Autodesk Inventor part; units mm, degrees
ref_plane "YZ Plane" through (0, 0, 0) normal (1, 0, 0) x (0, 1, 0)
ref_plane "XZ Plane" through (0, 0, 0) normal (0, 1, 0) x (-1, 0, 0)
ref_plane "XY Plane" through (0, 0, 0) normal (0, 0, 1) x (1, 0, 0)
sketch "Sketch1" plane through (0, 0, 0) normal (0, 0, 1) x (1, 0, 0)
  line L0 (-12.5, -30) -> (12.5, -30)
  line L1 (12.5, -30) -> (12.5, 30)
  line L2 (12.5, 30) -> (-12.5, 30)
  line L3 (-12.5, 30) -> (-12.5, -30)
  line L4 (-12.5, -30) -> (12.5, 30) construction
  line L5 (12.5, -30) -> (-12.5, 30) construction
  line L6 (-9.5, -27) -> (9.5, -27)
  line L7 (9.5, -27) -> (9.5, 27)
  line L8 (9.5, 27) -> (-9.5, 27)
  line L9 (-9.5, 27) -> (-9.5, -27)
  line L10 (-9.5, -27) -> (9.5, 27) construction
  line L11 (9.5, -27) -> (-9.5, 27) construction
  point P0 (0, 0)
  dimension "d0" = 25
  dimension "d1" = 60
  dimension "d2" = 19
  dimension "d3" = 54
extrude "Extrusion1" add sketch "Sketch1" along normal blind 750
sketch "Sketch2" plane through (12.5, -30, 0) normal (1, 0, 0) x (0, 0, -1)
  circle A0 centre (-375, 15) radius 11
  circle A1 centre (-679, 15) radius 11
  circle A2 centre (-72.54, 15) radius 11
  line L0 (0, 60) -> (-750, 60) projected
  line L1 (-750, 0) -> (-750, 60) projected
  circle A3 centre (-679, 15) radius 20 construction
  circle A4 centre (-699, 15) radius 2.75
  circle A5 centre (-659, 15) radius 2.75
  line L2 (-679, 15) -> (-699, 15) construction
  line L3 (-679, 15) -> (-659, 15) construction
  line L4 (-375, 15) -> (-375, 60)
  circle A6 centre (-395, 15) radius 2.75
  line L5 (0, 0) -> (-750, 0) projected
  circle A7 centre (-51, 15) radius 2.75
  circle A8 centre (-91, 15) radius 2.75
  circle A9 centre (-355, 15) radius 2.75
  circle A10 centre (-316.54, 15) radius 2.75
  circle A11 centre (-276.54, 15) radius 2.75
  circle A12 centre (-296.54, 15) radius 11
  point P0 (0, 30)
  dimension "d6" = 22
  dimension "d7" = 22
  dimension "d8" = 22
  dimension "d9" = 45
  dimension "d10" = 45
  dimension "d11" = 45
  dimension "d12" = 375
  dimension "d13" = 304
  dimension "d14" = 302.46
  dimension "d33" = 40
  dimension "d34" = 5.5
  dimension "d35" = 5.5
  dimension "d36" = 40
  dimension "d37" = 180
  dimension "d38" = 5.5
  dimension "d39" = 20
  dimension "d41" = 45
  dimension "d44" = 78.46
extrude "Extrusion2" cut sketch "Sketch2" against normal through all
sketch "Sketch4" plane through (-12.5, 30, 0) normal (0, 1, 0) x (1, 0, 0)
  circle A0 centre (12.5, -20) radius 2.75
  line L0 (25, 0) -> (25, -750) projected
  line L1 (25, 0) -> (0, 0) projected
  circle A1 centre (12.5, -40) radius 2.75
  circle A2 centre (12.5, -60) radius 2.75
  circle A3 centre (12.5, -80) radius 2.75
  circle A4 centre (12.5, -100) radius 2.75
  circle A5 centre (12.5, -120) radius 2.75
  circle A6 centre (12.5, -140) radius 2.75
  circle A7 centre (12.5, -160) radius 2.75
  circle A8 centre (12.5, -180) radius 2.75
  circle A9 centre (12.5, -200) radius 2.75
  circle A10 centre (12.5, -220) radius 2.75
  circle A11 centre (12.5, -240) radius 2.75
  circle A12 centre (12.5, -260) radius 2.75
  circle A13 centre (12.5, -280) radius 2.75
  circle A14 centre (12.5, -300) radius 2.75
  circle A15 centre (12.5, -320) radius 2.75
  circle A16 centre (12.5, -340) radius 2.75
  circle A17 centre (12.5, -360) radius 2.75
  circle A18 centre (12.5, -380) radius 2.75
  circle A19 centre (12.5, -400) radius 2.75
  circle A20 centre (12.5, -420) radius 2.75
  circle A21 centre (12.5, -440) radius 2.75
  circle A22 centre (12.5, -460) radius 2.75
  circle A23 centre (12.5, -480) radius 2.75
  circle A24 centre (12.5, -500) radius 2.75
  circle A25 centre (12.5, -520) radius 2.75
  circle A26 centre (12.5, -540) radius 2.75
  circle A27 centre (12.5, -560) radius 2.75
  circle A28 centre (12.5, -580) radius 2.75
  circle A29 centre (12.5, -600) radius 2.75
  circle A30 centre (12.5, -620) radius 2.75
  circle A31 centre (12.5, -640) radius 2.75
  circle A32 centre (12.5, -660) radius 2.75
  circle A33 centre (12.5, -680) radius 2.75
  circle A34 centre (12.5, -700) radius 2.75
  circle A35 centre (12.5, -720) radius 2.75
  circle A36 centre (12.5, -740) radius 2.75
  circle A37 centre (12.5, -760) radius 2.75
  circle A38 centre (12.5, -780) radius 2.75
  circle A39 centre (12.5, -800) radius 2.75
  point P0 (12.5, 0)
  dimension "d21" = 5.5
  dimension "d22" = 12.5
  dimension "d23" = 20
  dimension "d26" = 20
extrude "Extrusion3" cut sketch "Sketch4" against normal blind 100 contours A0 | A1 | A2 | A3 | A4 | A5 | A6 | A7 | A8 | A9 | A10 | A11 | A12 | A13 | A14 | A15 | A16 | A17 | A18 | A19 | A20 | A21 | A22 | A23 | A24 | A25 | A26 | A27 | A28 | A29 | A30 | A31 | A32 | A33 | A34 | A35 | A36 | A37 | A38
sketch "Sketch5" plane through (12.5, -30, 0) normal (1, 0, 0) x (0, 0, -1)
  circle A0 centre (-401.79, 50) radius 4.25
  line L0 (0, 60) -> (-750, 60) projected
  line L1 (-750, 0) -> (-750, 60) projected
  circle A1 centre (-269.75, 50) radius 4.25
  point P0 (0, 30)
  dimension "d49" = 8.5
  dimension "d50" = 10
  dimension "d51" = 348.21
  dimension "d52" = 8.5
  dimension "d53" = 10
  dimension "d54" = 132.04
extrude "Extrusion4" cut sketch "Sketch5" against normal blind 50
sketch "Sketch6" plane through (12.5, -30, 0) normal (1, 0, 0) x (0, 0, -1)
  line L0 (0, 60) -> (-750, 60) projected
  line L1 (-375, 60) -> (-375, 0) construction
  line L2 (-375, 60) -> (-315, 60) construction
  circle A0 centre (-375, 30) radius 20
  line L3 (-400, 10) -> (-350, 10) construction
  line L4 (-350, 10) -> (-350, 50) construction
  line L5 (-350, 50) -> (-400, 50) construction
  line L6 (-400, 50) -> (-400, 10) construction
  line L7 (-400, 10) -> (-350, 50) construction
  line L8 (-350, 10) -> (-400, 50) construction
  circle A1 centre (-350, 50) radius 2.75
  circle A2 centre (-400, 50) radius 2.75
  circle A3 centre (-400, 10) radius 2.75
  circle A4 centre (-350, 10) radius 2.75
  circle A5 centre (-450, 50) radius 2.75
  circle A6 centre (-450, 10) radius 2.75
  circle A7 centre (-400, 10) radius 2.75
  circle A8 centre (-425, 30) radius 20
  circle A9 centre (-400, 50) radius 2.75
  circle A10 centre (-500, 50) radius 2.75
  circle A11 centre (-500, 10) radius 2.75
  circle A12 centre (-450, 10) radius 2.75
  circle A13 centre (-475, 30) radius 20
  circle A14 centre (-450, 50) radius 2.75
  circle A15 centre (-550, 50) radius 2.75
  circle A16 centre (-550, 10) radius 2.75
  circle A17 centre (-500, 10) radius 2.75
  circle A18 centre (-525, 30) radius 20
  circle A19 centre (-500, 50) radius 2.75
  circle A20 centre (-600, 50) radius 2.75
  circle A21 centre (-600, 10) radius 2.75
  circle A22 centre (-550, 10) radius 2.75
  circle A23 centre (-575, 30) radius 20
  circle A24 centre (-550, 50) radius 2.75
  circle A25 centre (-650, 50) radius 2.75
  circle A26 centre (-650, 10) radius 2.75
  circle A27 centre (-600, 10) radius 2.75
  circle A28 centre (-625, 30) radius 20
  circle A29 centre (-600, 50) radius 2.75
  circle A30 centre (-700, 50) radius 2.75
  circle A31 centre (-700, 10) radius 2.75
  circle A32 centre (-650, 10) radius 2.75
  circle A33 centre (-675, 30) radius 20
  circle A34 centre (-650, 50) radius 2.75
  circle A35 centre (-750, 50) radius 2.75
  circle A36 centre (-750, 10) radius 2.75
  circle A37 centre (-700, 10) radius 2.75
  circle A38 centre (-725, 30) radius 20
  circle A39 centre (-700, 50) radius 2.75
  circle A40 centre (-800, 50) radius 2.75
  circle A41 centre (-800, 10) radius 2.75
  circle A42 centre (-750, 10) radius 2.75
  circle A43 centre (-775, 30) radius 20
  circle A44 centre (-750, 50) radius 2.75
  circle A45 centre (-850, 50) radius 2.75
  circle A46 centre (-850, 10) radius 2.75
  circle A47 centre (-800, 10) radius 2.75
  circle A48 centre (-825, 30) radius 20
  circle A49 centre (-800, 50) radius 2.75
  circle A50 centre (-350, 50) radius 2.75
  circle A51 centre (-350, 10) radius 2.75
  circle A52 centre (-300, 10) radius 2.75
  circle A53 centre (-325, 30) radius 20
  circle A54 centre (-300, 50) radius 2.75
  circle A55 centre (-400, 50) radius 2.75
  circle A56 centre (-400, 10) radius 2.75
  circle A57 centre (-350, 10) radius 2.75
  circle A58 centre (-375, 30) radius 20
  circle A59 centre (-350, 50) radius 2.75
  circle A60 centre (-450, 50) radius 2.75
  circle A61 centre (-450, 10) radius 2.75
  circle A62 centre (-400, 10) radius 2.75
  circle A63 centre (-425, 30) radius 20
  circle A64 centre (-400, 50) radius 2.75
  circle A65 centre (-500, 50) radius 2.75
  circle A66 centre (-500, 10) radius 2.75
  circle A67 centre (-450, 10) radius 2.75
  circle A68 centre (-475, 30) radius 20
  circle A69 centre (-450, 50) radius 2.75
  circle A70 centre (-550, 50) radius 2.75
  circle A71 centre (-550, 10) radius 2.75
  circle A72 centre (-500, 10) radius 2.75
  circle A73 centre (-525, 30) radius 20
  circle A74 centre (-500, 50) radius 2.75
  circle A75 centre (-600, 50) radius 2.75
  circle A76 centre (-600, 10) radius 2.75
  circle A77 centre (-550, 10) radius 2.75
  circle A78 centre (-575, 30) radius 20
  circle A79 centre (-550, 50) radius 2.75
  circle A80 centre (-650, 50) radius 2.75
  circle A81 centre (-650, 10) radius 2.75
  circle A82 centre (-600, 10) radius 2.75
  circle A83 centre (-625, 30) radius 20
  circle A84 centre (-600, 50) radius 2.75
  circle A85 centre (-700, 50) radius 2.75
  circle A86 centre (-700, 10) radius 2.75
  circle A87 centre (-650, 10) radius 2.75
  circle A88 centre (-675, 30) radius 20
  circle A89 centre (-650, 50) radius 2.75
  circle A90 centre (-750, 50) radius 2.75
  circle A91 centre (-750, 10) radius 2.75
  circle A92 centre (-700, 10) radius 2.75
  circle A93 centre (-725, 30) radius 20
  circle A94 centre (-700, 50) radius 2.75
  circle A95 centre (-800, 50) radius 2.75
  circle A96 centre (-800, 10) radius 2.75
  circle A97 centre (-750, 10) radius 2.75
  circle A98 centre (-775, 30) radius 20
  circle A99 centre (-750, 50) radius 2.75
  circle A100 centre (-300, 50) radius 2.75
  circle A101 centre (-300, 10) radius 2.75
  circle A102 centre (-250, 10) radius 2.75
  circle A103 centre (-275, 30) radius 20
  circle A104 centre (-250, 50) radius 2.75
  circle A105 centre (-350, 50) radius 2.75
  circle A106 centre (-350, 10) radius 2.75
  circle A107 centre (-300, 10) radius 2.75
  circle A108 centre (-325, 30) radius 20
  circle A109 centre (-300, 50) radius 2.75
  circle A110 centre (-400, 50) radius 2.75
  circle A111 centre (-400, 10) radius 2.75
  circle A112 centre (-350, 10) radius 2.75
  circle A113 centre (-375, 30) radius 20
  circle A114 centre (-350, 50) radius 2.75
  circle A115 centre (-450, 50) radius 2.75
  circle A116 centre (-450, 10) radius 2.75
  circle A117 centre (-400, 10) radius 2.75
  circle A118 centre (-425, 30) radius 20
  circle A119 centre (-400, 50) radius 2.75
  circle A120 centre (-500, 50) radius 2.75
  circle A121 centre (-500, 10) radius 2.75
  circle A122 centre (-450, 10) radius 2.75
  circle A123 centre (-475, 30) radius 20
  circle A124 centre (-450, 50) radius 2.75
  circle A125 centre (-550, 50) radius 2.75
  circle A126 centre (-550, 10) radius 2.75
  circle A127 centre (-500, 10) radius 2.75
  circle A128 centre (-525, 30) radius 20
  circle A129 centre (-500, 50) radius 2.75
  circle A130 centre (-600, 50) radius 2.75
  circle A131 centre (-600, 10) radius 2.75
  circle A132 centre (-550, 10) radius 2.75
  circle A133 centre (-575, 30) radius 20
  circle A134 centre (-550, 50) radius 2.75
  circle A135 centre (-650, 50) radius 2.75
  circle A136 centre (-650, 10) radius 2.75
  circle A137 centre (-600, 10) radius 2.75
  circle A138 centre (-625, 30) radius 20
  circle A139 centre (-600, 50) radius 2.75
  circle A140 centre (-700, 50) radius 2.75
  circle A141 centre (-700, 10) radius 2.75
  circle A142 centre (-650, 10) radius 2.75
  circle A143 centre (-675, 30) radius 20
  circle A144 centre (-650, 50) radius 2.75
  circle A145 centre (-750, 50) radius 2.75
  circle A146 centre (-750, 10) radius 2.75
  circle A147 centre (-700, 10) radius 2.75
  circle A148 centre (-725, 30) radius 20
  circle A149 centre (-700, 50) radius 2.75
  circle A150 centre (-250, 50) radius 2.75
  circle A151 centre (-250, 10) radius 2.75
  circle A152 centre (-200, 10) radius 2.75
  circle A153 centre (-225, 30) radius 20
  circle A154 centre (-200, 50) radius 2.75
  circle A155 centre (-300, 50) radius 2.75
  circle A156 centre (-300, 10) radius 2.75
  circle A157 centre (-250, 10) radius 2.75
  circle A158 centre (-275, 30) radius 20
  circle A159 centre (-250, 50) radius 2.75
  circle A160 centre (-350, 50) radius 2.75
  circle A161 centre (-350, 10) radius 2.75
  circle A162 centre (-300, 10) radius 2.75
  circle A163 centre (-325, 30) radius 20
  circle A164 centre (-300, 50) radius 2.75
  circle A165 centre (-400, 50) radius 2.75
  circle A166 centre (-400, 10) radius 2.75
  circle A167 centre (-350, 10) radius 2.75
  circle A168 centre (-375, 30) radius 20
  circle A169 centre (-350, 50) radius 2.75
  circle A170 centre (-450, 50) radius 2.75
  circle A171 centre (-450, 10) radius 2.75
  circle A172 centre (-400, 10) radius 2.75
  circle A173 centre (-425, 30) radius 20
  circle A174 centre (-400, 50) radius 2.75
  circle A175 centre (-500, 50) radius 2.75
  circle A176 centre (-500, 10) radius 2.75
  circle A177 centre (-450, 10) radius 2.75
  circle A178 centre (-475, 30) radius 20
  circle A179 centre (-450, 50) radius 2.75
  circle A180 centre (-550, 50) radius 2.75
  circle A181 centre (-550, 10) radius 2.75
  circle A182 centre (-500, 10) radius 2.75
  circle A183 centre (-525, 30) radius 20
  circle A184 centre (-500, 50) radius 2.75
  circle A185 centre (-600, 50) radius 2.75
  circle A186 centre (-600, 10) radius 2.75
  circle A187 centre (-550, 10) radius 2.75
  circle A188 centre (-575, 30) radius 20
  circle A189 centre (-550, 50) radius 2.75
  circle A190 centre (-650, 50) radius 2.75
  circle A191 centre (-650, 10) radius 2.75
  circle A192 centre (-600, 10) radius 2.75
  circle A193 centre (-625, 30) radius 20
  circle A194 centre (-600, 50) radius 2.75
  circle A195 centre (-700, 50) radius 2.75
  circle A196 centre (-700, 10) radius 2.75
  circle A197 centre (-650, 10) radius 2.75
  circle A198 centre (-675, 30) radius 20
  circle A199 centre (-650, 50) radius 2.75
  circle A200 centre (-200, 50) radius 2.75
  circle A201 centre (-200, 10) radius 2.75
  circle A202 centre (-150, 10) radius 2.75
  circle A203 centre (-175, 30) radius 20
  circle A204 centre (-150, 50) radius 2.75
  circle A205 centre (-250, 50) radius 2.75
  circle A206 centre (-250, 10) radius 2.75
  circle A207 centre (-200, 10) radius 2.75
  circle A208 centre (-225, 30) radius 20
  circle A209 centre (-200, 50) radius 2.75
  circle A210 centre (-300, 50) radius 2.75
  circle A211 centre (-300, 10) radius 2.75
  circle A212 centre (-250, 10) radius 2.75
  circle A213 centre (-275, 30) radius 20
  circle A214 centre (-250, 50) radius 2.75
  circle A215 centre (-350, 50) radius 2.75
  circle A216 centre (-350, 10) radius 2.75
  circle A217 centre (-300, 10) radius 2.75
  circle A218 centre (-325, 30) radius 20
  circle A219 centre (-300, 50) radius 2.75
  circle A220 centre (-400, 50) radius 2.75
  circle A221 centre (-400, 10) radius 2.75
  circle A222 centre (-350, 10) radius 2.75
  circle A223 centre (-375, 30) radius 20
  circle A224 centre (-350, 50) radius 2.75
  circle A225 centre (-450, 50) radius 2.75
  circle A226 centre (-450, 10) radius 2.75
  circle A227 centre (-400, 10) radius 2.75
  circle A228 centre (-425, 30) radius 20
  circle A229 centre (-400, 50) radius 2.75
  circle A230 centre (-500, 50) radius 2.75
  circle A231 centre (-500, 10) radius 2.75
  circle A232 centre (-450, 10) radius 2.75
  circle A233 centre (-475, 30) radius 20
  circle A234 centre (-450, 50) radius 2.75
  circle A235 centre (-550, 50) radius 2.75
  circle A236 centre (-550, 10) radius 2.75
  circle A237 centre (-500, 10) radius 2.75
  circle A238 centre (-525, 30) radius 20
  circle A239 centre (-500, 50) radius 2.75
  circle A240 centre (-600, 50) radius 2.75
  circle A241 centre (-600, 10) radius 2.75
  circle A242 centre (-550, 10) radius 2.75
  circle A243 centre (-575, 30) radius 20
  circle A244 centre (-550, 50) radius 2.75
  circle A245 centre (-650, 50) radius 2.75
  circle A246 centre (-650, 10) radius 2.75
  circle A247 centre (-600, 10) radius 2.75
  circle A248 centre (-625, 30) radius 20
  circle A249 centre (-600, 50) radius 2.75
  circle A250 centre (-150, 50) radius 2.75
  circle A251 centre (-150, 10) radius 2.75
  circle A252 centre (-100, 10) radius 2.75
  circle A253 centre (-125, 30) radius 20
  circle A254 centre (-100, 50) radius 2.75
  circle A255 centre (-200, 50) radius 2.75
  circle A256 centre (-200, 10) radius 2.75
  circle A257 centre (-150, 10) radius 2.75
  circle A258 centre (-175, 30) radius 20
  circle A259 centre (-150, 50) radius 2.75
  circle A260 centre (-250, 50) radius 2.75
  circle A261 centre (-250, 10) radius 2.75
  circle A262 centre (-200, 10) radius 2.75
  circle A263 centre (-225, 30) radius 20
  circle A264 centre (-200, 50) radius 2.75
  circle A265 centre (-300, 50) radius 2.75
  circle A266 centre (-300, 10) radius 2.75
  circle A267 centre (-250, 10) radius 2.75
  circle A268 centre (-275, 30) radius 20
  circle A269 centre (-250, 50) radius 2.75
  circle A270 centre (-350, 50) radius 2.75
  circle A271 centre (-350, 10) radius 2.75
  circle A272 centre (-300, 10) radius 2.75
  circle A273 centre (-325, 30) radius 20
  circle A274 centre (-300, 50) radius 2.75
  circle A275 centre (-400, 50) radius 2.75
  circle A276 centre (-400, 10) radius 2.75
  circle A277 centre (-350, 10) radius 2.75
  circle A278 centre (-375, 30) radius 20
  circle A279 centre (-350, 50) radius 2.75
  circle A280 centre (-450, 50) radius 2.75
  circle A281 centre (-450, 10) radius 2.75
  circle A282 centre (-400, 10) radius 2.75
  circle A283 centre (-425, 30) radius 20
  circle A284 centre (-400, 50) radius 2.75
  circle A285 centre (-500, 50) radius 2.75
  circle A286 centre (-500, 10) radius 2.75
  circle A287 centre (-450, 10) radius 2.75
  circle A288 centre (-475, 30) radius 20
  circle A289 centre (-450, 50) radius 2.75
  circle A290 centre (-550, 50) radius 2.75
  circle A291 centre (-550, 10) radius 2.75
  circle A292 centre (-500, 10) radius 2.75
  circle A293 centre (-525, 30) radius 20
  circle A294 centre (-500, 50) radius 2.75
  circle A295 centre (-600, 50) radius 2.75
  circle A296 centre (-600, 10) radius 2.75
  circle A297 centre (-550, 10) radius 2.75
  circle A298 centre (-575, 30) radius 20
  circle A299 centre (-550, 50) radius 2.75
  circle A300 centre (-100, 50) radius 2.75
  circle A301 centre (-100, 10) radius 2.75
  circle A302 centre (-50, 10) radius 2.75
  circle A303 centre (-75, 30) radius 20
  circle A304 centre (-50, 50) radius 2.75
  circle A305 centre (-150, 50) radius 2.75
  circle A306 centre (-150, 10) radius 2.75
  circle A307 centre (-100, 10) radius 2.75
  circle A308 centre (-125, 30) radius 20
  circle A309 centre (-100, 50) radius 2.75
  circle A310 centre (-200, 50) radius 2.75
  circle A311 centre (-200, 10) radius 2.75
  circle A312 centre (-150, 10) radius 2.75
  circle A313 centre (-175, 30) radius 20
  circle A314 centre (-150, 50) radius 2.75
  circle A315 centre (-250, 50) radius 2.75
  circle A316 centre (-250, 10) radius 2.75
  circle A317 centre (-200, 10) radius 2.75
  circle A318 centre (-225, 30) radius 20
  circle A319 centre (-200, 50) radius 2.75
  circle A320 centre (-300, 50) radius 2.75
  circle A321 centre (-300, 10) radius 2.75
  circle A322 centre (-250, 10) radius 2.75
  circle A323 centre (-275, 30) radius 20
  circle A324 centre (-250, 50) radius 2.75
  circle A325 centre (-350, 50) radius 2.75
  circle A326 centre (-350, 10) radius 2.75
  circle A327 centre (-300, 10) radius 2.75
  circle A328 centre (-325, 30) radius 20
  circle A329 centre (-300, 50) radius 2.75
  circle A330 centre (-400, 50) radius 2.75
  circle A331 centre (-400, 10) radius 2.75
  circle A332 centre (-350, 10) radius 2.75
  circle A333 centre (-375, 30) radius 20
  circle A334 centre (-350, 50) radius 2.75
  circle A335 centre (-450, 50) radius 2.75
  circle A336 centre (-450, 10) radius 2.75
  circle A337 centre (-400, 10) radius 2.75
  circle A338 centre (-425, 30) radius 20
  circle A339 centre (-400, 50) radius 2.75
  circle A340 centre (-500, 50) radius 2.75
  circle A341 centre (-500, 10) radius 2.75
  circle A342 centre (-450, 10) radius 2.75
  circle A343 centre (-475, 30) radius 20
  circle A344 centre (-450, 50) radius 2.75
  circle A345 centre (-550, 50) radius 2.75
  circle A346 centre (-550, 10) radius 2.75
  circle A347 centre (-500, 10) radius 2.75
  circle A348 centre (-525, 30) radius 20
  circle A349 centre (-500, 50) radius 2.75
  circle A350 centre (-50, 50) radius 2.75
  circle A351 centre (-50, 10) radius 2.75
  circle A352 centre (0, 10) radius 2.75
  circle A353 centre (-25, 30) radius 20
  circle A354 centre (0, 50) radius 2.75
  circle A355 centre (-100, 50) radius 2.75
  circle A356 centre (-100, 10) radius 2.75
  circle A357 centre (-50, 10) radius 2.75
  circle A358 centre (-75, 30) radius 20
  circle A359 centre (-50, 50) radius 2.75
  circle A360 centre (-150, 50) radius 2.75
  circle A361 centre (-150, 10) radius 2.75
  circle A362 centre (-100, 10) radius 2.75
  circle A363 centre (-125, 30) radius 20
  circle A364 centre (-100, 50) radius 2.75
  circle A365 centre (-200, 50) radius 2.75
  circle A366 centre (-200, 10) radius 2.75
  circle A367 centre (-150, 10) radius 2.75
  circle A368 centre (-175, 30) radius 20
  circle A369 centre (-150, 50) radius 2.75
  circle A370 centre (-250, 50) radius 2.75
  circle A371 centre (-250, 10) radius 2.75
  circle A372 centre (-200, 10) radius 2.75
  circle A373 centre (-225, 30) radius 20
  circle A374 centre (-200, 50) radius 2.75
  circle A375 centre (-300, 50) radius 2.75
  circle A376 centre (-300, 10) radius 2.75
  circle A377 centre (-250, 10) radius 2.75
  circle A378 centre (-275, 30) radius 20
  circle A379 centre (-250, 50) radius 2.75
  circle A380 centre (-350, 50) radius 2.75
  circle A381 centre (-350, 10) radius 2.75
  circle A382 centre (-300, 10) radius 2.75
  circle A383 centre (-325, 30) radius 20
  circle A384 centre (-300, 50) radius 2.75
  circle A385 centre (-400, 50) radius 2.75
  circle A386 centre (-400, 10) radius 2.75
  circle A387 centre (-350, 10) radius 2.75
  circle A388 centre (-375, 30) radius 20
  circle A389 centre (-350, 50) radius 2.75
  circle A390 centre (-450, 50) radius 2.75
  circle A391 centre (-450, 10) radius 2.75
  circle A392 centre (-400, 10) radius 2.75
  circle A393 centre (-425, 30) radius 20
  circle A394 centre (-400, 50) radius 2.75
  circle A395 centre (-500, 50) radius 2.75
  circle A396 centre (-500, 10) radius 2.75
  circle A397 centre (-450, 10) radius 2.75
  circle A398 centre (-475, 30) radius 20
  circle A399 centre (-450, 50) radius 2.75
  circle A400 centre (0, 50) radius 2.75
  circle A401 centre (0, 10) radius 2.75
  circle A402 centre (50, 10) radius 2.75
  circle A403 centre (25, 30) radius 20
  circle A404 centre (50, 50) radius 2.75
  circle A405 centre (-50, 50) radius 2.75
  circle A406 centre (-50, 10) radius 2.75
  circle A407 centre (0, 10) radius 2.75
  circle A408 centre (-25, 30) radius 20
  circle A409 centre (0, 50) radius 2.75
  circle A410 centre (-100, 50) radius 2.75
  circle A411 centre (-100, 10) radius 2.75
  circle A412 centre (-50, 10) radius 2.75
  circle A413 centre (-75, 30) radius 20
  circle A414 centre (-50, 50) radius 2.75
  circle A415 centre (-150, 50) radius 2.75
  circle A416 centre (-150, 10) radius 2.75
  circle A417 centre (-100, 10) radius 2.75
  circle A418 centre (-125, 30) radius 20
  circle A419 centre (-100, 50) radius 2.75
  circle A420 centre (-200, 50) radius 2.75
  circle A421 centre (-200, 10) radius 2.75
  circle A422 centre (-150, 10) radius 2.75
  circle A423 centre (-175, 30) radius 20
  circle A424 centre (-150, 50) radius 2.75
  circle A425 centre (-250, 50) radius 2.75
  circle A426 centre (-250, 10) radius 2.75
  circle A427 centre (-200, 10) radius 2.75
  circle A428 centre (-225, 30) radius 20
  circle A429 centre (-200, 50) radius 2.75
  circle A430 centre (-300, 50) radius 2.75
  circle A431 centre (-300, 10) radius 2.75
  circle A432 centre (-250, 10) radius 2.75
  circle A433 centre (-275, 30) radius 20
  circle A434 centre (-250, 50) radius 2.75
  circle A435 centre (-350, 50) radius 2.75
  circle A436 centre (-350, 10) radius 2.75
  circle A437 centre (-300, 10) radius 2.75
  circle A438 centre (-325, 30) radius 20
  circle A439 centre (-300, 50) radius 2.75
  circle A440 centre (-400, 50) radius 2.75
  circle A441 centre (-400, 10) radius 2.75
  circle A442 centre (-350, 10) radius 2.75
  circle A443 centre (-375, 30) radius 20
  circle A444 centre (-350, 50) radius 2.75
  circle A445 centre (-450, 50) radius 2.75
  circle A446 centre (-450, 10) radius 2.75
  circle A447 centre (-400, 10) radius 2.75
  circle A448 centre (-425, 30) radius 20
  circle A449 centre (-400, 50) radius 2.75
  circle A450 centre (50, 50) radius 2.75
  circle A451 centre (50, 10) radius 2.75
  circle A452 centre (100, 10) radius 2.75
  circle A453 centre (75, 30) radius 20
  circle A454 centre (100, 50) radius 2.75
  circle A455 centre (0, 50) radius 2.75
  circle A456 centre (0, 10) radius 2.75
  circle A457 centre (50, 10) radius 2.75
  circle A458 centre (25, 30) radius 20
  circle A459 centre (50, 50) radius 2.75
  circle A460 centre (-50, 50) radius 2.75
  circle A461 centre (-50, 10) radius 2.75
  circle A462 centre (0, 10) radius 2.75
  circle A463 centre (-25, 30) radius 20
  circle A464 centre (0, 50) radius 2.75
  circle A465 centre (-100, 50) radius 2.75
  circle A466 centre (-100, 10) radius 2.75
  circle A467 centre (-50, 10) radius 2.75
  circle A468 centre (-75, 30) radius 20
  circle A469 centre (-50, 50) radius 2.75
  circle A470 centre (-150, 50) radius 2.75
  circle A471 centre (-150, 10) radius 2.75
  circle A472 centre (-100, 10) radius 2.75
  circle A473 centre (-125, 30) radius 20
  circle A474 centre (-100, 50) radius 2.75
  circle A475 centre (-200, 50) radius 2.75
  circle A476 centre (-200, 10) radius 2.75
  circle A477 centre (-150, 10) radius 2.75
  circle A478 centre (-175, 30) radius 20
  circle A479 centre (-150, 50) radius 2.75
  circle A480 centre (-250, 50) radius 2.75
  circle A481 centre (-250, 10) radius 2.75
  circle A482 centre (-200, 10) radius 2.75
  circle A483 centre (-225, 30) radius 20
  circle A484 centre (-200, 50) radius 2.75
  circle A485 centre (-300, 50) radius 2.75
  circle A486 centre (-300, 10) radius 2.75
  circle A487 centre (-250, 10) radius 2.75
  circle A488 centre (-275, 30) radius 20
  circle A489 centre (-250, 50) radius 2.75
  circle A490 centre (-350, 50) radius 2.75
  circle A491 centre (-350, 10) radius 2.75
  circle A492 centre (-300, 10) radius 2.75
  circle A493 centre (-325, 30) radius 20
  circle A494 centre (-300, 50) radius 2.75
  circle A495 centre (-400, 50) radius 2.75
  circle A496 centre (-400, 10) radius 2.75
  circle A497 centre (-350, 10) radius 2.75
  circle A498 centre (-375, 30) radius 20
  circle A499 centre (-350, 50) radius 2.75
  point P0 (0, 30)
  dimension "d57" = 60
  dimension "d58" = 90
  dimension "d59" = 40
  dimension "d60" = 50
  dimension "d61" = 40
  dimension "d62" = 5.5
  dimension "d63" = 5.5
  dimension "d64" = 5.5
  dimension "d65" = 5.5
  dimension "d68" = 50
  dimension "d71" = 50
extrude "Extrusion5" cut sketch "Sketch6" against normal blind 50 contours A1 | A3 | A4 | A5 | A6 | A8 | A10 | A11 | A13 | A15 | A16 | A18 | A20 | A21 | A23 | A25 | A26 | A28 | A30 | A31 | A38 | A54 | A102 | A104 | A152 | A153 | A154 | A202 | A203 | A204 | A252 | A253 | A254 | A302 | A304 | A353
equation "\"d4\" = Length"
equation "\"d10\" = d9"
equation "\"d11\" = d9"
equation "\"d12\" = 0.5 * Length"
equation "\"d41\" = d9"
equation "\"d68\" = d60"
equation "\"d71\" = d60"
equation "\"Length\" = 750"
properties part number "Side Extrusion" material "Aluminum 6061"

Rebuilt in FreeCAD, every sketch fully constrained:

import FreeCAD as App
import Part
import Sketcher

V = App.Vector

doc = App.newDocument("Part")
body = doc.addObject("PartDesign::Body", "Body")

sketch1 = body.newObject("Sketcher::SketchObject", "Sketch")
sketch1.AttachmentSupport = (doc.getObject("XY_Plane"), [""])
sketch1.MapMode = "FlatFace"
sketch1.addGeometry([
    Part.LineSegment(V(-12, 30, 0), V(-12, -30, 0)),
    Part.LineSegment(V(-12, -30, 0), V(12, -30, 0)),
    Part.LineSegment(V(12, -30, 0), V(12, 30, 0)),
    Part.LineSegment(V(12, 30, 0), V(-12, 30, 0)),
    Part.LineSegment(V(10, -27, 0), V(-10, -27, 0)),
    Part.LineSegment(V(-10, -27, 0), V(-10, 27, 0)),
    Part.LineSegment(V(-10, 27, 0), V(10, 27, 0)),
    Part.LineSegment(V(10, 27, 0), V(10, -27, 0)),
], False)
sketch1.addConstraint([
    Sketcher.Constraint("Coincident", 0, 2, 1, 1),
    Sketcher.Constraint("Coincident", 1, 2, 2, 1),
    Sketcher.Constraint("Coincident", 2, 2, 3, 1),
    Sketcher.Constraint("Coincident", 3, 2, 0, 1),
    Sketcher.Constraint("Coincident", 4, 2, 5, 1),
    Sketcher.Constraint("Coincident", 5, 2, 6, 1),
    Sketcher.Constraint("Coincident", 6, 2, 7, 1),
    Sketcher.Constraint("Coincident", 7, 2, 4, 1),
    Sketcher.Constraint("Vertical", 0),
    Sketcher.Constraint("Horizontal", 1),
    Sketcher.Constraint("Vertical", 2),
    Sketcher.Constraint("Horizontal", 3),
    Sketcher.Constraint("Horizontal", 4),
    Sketcher.Constraint("Vertical", 5),
    Sketcher.Constraint("Horizontal", 6),
    Sketcher.Constraint("Vertical", 7),
    Sketcher.Constraint("Symmetric", 0, 2, 2, 2, -1, 1),
    Sketcher.Constraint("Symmetric", 4, 2, 6, 2, -1, 1),
    Sketcher.Constraint("DistanceX", 1, 1, 1, 2, 25.0),
    Sketcher.Constraint("DistanceX", 4, 2, 4, 1, 19.0),
    Sketcher.Constraint("DistanceY", 0, 2, 0, 1, 60.0),
    Sketcher.Constraint("DistanceY", 5, 1, 5, 2, 54.0),
])
pad1 = body.newObject("PartDesign::Pad", "Pad")
pad1.Profile = sketch1
pad1.Length = 750

sketch2 = body.newObject("Sketcher::SketchObject", "Sketch001")
sketch2.AttachmentSupport = (doc.getObject("YZ_Plane"), [""])
sketch2.MapMode = "FlatFace"
sketch2.AttachmentOffset = App.Placement(V(0, 0, 12.5), App.Rotation())
sketch2.addGeometry([
    Part.Circle(V(-15, 375, 0), V(0, 0, 1), 11),
    Part.Circle(V(-15, 679, 0), V(0, 0, 1), 11),
    Part.Circle(V(-15, 72.5, 0), V(0, 0, 1), 11),
    Part.Circle(V(-15, 699, 0), V(0, 0, 1), 2.8),
    Part.Circle(V(-15, 659, 0), V(0, 0, 1), 2.8),
    Part.Circle(V(-15, 395, 0), V(0, 0, 1), 2.8),
    Part.Circle(V(-15, 51, 0), V(0, 0, 1), 2.8),
    Part.Circle(V(-15, 91, 0), V(0, 0, 1), 2.8),
    Part.Circle(V(-15, 355, 0), V(0, 0, 1), 2.8),
    Part.Circle(V(-15, 316.5, 0), V(0, 0, 1), 2.8),
    Part.Circle(V(-15, 276.5, 0), V(0, 0, 1), 2.8),
    Part.Circle(V(-15, 296.5, 0), V(0, 0, 1), 11),
], False)
sketch2.addConstraint([
    Sketcher.Constraint("Equal", 0, 1),
    Sketcher.Constraint("Equal", 1, 2),
    Sketcher.Constraint("Equal", 3, 4),
    Sketcher.Constraint("Equal", 4, 5),
    Sketcher.Constraint("Equal", 5, 6),
    Sketcher.Constraint("Equal", 6, 7),
    Sketcher.Constraint("Equal", 7, 8),
    Sketcher.Constraint("Equal", 8, 9),
    Sketcher.Constraint("Equal", 9, 10),
    Sketcher.Constraint("Equal", 2, 11),
    Sketcher.Constraint("Vertical", 0, 3, 1, 3),
    Sketcher.Constraint("Vertical", 1, 3, 2, 3),
    Sketcher.Constraint("Vertical", 2, 3, 3, 3),
    Sketcher.Constraint("Vertical", 3, 3, 4, 3),
    Sketcher.Constraint("Vertical", 4, 3, 5, 3),
    Sketcher.Constraint("Vertical", 5, 3, 6, 3),
    Sketcher.Constraint("Vertical", 6, 3, 7, 3),
    Sketcher.Constraint("Vertical", 7, 3, 8, 3),
    Sketcher.Constraint("Vertical", 8, 3, 9, 3),
    Sketcher.Constraint("Vertical", 9, 3, 10, 3),
    Sketcher.Constraint("Vertical", 10, 3, 11, 3),
    Sketcher.Constraint("Diameter", 0, 22.0),
    Sketcher.Constraint("Diameter", 3, 5.5),
    Sketcher.Constraint("DistanceY", -1, 1, 0, 3, 375.0),
    Sketcher.Constraint("DistanceY", 0, 3, 1, 3, 304.0),
    Sketcher.Constraint("DistanceY", 1, 3, 3, 3, 20.0),
    Sketcher.Constraint("DistanceY", 4, 3, 1, 3, 20.0),
    Sketcher.Constraint("DistanceY", 0, 3, 5, 3, 20.0),
    Sketcher.Constraint("DistanceY", 6, 3, 7, 3, 40.0),
    Sketcher.Constraint("DistanceY", 7, 3, 5, 3, 304.0),
    Sketcher.Constraint("DistanceY", 8, 3, 0, 3, 20.0),
    Sketcher.Constraint("DistanceY", 10, 3, 9, 3, 40.0),
    Sketcher.Constraint("DistanceY", 11, 3, 9, 3, 20.0),
    Sketcher.Constraint("DistanceY", 2, 3, 0, 3, 302.46),
    Sketcher.Constraint("DistanceY", 9, 3, 5, 3, 78.46),
    Sketcher.Constraint("DistanceX", 0, 3, -1, 1, 15.0),
])
pocket1 = body.newObject("PartDesign::Pocket", "Pocket")
pocket1.Profile = sketch2
pocket1.Type = "ThroughAll"

sketch3 = body.newObject("Sketcher::SketchObject", "Sketch002")
sketch3.AttachmentSupport = (doc.getObject("XZ_Plane"), [""])
sketch3.MapMode = "FlatFace"
sketch3.AttachmentOffset = App.Placement(V(0, 0, -30), App.Rotation())
sketch3.addGeometry([
    Part.Circle(V(0, 20, 0), V(0, 0, 1), 2.8),
    Part.Circle(V(0, 40, 0), V(0, 0, 1), 2.8),
    Part.Circle(V(0, 60, 0), V(0, 0, 1), 2.8),
    Part.Circle(V(0, 80, 0), V(0, 0, 1), 2.8),
    Part.Circle(V(0, 100, 0), V(0, 0, 1), 2.8),
    Part.Circle(V(0, 120, 0), V(0, 0, 1), 2.8),
    Part.Circle(V(0, 140, 0), V(0, 0, 1), 2.8),
    Part.Circle(V(0, 160, 0), V(0, 0, 1), 2.8),
    Part.Circle(V(0, 180, 0), V(0, 0, 1), 2.8),
    Part.Circle(V(0, 200, 0), V(0, 0, 1), 2.8),
    Part.Circle(V(0, 220, 0), V(0, 0, 1), 2.8),
    Part.Circle(V(0, 240, 0), V(0, 0, 1), 2.8),
    Part.Circle(V(0, 260, 0), V(0, 0, 1), 2.8),
    Part.Circle(V(0, 280, 0), V(0, 0, 1), 2.8),
    Part.Circle(V(0, 300, 0), V(0, 0, 1), 2.8),
    Part.Circle(V(0, 320, 0), V(0, 0, 1), 2.8),
    Part.Circle(V(0, 340, 0), V(0, 0, 1), 2.8),
    Part.Circle(V(0, 360, 0), V(0, 0, 1), 2.8),
    Part.Circle(V(0, 380, 0), V(0, 0, 1), 2.8),
    Part.Circle(V(0, 400, 0), V(0, 0, 1), 2.8),
    Part.Circle(V(0, 420, 0), V(0, 0, 1), 2.8),
    Part.Circle(V(0, 440, 0), V(0, 0, 1), 2.8),
    Part.Circle(V(0, 460, 0), V(0, 0, 1), 2.8),
    Part.Circle(V(0, 480, 0), V(0, 0, 1), 2.8),
    Part.Circle(V(0, 500, 0), V(0, 0, 1), 2.8),
    Part.Circle(V(0, 520, 0), V(0, 0, 1), 2.8),
    Part.Circle(V(0, 540, 0), V(0, 0, 1), 2.8),
    Part.Circle(V(0, 560, 0), V(0, 0, 1), 2.8),
    Part.Circle(V(0, 580, 0), V(0, 0, 1), 2.8),
    Part.Circle(V(0, 600, 0), V(0, 0, 1), 2.8),
    Part.Circle(V(0, 620, 0), V(0, 0, 1), 2.8),
    Part.Circle(V(0, 640, 0), V(0, 0, 1), 2.8),
    Part.Circle(V(0, 660, 0), V(0, 0, 1), 2.8),
    Part.Circle(V(0, 680, 0), V(0, 0, 1), 2.8),
    Part.Circle(V(0, 700, 0), V(0, 0, 1), 2.8),
    Part.Circle(V(0, 720, 0), V(0, 0, 1), 2.8),
    Part.Circle(V(0, 740, 0), V(0, 0, 1), 2.8),
    Part.Circle(V(0, 760, 0), V(0, 0, 1), 2.8),
    Part.Circle(V(0, 780, 0), V(0, 0, 1), 2.8),
], False)
sketch3.addConstraint([
    Sketcher.Constraint("Equal", 0, 1),
    Sketcher.Constraint("Equal", 1, 2),
    Sketcher.Constraint("Equal", 2, 3),
    Sketcher.Constraint("Equal", 3, 4),
    Sketcher.Constraint("Equal", 4, 5),
    Sketcher.Constraint("Equal", 5, 6),
    Sketcher.Constraint("Equal", 6, 7),
    Sketcher.Constraint("Equal", 7, 8),
    Sketcher.Constraint("Equal", 8, 9),
    Sketcher.Constraint("Equal", 9, 10),
    Sketcher.Constraint("Equal", 10, 11),
    Sketcher.Constraint("Equal", 11, 12),
    Sketcher.Constraint("Equal", 12, 13),
    Sketcher.Constraint("Equal", 13, 14),
    Sketcher.Constraint("Equal", 14, 15),
    Sketcher.Constraint("Equal", 15, 16),
    Sketcher.Constraint("Equal", 16, 17),
    Sketcher.Constraint("Equal", 17, 18),
    Sketcher.Constraint("Equal", 18, 19),
    Sketcher.Constraint("Equal", 19, 20),
    Sketcher.Constraint("Equal", 20, 21),
    Sketcher.Constraint("Equal", 21, 22),
    Sketcher.Constraint("Equal", 22, 23),
    Sketcher.Constraint("Equal", 23, 24),
    Sketcher.Constraint("Equal", 24, 25),
    Sketcher.Constraint("Equal", 25, 26),
    Sketcher.Constraint("Equal", 26, 27),
    Sketcher.Constraint("Equal", 27, 28),
    Sketcher.Constraint("Equal", 28, 29),
    Sketcher.Constraint("Equal", 29, 30),
    Sketcher.Constraint("Equal", 30, 31),
    Sketcher.Constraint("Equal", 31, 32),
    Sketcher.Constraint("Equal", 32, 33),
    Sketcher.Constraint("Equal", 33, 34),
    Sketcher.Constraint("Equal", 34, 35),
    Sketcher.Constraint("Equal", 35, 36),
    Sketcher.Constraint("Equal", 36, 37),
    Sketcher.Constraint("Equal", 37, 38),
    Sketcher.Constraint("PointOnObject", 0, 3, -2),
    Sketcher.Constraint("PointOnObject", 1, 3, -2),
    Sketcher.Constraint("PointOnObject", 2, 3, -2),
    Sketcher.Constraint("PointOnObject", 3, 3, -2),
    Sketcher.Constraint("PointOnObject", 4, 3, -2),
    Sketcher.Constraint("PointOnObject", 5, 3, -2),
    Sketcher.Constraint("PointOnObject", 6, 3, -2),
    Sketcher.Constraint("PointOnObject", 7, 3, -2),
    Sketcher.Constraint("PointOnObject", 8, 3, -2),
    Sketcher.Constraint("PointOnObject", 9, 3, -2),
    Sketcher.Constraint("PointOnObject", 10, 3, -2),
    Sketcher.Constraint("PointOnObject", 11, 3, -2),
    Sketcher.Constraint("PointOnObject", 12, 3, -2),
    Sketcher.Constraint("PointOnObject", 13, 3, -2),
    Sketcher.Constraint("PointOnObject", 14, 3, -2),
    Sketcher.Constraint("PointOnObject", 15, 3, -2),
    Sketcher.Constraint("PointOnObject", 16, 3, -2),
    Sketcher.Constraint("PointOnObject", 17, 3, -2),
    Sketcher.Constraint("PointOnObject", 18, 3, -2),
    Sketcher.Constraint("PointOnObject", 19, 3, -2),
    Sketcher.Constraint("PointOnObject", 20, 3, -2),
    Sketcher.Constraint("PointOnObject", 21, 3, -2),
    Sketcher.Constraint("PointOnObject", 22, 3, -2),
    Sketcher.Constraint("PointOnObject", 23, 3, -2),
    Sketcher.Constraint("PointOnObject", 24, 3, -2),
    Sketcher.Constraint("PointOnObject", 25, 3, -2),
    Sketcher.Constraint("PointOnObject", 26, 3, -2),
    Sketcher.Constraint("PointOnObject", 27, 3, -2),
    Sketcher.Constraint("PointOnObject", 28, 3, -2),
    Sketcher.Constraint("PointOnObject", 29, 3, -2),
    Sketcher.Constraint("PointOnObject", 30, 3, -2),
    Sketcher.Constraint("PointOnObject", 31, 3, -2),
    Sketcher.Constraint("PointOnObject", 32, 3, -2),
    Sketcher.Constraint("PointOnObject", 33, 3, -2),
    Sketcher.Constraint("PointOnObject", 34, 3, -2),
    Sketcher.Constraint("PointOnObject", 35, 3, -2),
    Sketcher.Constraint("PointOnObject", 36, 3, -2),
    Sketcher.Constraint("PointOnObject", 37, 3, -2),
    Sketcher.Constraint("PointOnObject", 38, 3, -2),
    Sketcher.Constraint("Diameter", 0, 5.5),
    Sketcher.Constraint("DistanceY", -1, 1, 0, 3, 20.0),
    Sketcher.Constraint("DistanceY", 0, 3, 1, 3, 20.0),
    Sketcher.Constraint("DistanceY", 1, 3, 2, 3, 20.0),
    Sketcher.Constraint("DistanceY", 2, 3, 3, 3, 20.0),
    Sketcher.Constraint("DistanceY", 3, 3, 4, 3, 20.0),
    Sketcher.Constraint("DistanceY", 4, 3, 5, 3, 20.0),
    Sketcher.Constraint("DistanceY", 5, 3, 6, 3, 20.0),
    Sketcher.Constraint("DistanceY", 6, 3, 7, 3, 20.0),
    Sketcher.Constraint("DistanceY", 7, 3, 8, 3, 20.0),
    Sketcher.Constraint("DistanceY", 8, 3, 9, 3, 20.0),
    Sketcher.Constraint("DistanceY", 9, 3, 10, 3, 20.0),
    Sketcher.Constraint("DistanceY", 10, 3, 11, 3, 20.0),
    Sketcher.Constraint("DistanceY", 11, 3, 12, 3, 20.0),
    Sketcher.Constraint("DistanceY", 12, 3, 13, 3, 20.0),
    Sketcher.Constraint("DistanceY", 13, 3, 14, 3, 20.0),
    Sketcher.Constraint("DistanceY", 14, 3, 15, 3, 20.0),
    Sketcher.Constraint("DistanceY", 15, 3, 16, 3, 20.0),
    Sketcher.Constraint("DistanceY", 16, 3, 17, 3, 20.0),
    Sketcher.Constraint("DistanceY", 17, 3, 18, 3, 20.0),
    Sketcher.Constraint("DistanceY", 18, 3, 19, 3, 20.0),
    Sketcher.Constraint("DistanceY", 19, 3, 20, 3, 20.0),
    Sketcher.Constraint("DistanceY", 20, 3, 21, 3, 20.0),
    Sketcher.Constraint("DistanceY", 21, 3, 22, 3, 20.0),
    Sketcher.Constraint("DistanceY", 22, 3, 23, 3, 20.0),
    Sketcher.Constraint("DistanceY", 23, 3, 24, 3, 20.0),
    Sketcher.Constraint("DistanceY", 24, 3, 25, 3, 20.0),
    Sketcher.Constraint("DistanceY", 25, 3, 26, 3, 20.0),
    Sketcher.Constraint("DistanceY", 26, 3, 27, 3, 20.0),
    Sketcher.Constraint("DistanceY", 27, 3, 28, 3, 20.0),
    Sketcher.Constraint("DistanceY", 28, 3, 29, 3, 20.0),
    Sketcher.Constraint("DistanceY", 29, 3, 30, 3, 20.0),
    Sketcher.Constraint("DistanceY", 30, 3, 31, 3, 20.0),
    Sketcher.Constraint("DistanceY", 31, 3, 32, 3, 20.0),
    Sketcher.Constraint("DistanceY", 32, 3, 33, 3, 20.0),
    Sketcher.Constraint("DistanceY", 33, 3, 34, 3, 20.0),
    Sketcher.Constraint("DistanceY", 34, 3, 35, 3, 20.0),
    Sketcher.Constraint("DistanceY", 35, 3, 36, 3, 20.0),
    Sketcher.Constraint("DistanceY", 36, 3, 37, 3, 20.0),
    Sketcher.Constraint("DistanceY", 37, 3, 38, 3, 20.0),
])
pocket2 = body.newObject("PartDesign::Pocket", "Pocket001")
pocket2.Profile = sketch3
pocket2.Length = 100
pocket2.Reversed = True

sketch4 = body.newObject("Sketcher::SketchObject", "Sketch003")
sketch4.AttachmentSupport = (doc.getObject("YZ_Plane"), [""])
sketch4.MapMode = "FlatFace"
sketch4.AttachmentOffset = App.Placement(V(0, 0, 12.5), App.Rotation())
sketch4.addGeometry([
    Part.Circle(V(20, 401.8, 0), V(0, 0, 1), 4.2),
    Part.Circle(V(20, 269.8, 0), V(0, 0, 1), 4.2),
], False)
sketch4.addConstraint([
    Sketcher.Constraint("Equal", 0, 1),
    Sketcher.Constraint("Vertical", 0, 3, 1, 3),
    Sketcher.Constraint("Diameter", 0, 8.5),
    Sketcher.Constraint("DistanceY", 1, 3, 0, 3, 132.04),
    Sketcher.Constraint("DistanceX", -1, 1, 0, 3, 20.0),
    Sketcher.Constraint("DistanceY", -1, 1, 0, 3, 401.79),
])
pocket3 = body.newObject("PartDesign::Pocket", "Pocket002")
pocket3.Profile = sketch4
pocket3.Length = 50

sketch5 = body.newObject("Sketcher::SketchObject", "Sketch004")
sketch5.AttachmentSupport = (doc.getObject("YZ_Plane"), [""])
sketch5.MapMode = "FlatFace"
sketch5.AttachmentOffset = App.Placement(V(0, 0, 12.5), App.Rotation())
sketch5.addGeometry([
    Part.Circle(V(20, 350, 0), V(0, 0, 1), 2.8),
    Part.Circle(V(-20, 400, 0), V(0, 0, 1), 2.8),
    Part.Circle(V(-20, 350, 0), V(0, 0, 1), 2.8),
    Part.Circle(V(20, 450, 0), V(0, 0, 1), 2.8),
    Part.Circle(V(-20, 450, 0), V(0, 0, 1), 2.8),
    Part.Circle(V(0, 425, 0), V(0, 0, 1), 20),
    Part.Circle(V(20, 500, 0), V(0, 0, 1), 2.8),
    Part.Circle(V(-20, 500, 0), V(0, 0, 1), 2.8),
    Part.Circle(V(0, 475, 0), V(0, 0, 1), 20),
    Part.Circle(V(20, 550, 0), V(0, 0, 1), 2.8),
    Part.Circle(V(-20, 550, 0), V(0, 0, 1), 2.8),
    Part.Circle(V(0, 525, 0), V(0, 0, 1), 20),
    Part.Circle(V(20, 600, 0), V(0, 0, 1), 2.8),
    Part.Circle(V(-20, 600, 0), V(0, 0, 1), 2.8),
    Part.Circle(V(0, 575, 0), V(0, 0, 1), 20),
    Part.Circle(V(20, 650, 0), V(0, 0, 1), 2.8),
    Part.Circle(V(-20, 650, 0), V(0, 0, 1), 2.8),
    Part.Circle(V(0, 625, 0), V(0, 0, 1), 20),
    Part.Circle(V(20, 700, 0), V(0, 0, 1), 2.8),
    Part.Circle(V(-20, 700, 0), V(0, 0, 1), 2.8),
    Part.Circle(V(0, 725, 0), V(0, 0, 1), 20),
    Part.Circle(V(20, 300, 0), V(0, 0, 1), 2.8),
    Part.Circle(V(-20, 250, 0), V(0, 0, 1), 2.8),
    Part.Circle(V(20, 250, 0), V(0, 0, 1), 2.8),
    Part.Circle(V(-20, 200, 0), V(0, 0, 1), 2.8),
    Part.Circle(V(0, 225, 0), V(0, 0, 1), 20),
    Part.Circle(V(20, 200, 0), V(0, 0, 1), 2.8),
    Part.Circle(V(-20, 150, 0), V(0, 0, 1), 2.8),
    Part.Circle(V(0, 175, 0), V(0, 0, 1), 20),
    Part.Circle(V(20, 150, 0), V(0, 0, 1), 2.8),
    Part.Circle(V(-20, 100, 0), V(0, 0, 1), 2.8),
    Part.Circle(V(0, 125, 0), V(0, 0, 1), 20),
    Part.Circle(V(20, 100, 0), V(0, 0, 1), 2.8),
    Part.Circle(V(-20, 50, 0), V(0, 0, 1), 2.8),
    Part.Circle(V(20, 50, 0), V(0, 0, 1), 2.8),
    Part.Circle(V(0, 25, 0), V(0, 0, 1), 20),
], False)
sketch5.addConstraint([
    Sketcher.Constraint("Equal", 0, 1),
    Sketcher.Constraint("Equal", 1, 2),
    Sketcher.Constraint("Equal", 2, 3),
    Sketcher.Constraint("Equal", 3, 4),
    Sketcher.Constraint("Equal", 4, 6),
    Sketcher.Constraint("Equal", 6, 7),
    Sketcher.Constraint("Equal", 5, 8),
    Sketcher.Constraint("Equal", 7, 9),
    Sketcher.Constraint("Equal", 9, 10),
    Sketcher.Constraint("Equal", 8, 11),
    Sketcher.Constraint("Equal", 10, 12),
    Sketcher.Constraint("Equal", 12, 13),
    Sketcher.Constraint("Equal", 11, 14),
    Sketcher.Constraint("Equal", 13, 15),
    Sketcher.Constraint("Equal", 15, 16),
    Sketcher.Constraint("Equal", 14, 17),
    Sketcher.Constraint("Equal", 16, 18),
    Sketcher.Constraint("Equal", 18, 19),
    Sketcher.Constraint("Equal", 17, 20),
    Sketcher.Constraint("Equal", 19, 21),
    Sketcher.Constraint("Equal", 21, 22),
    Sketcher.Constraint("Equal", 22, 23),
    Sketcher.Constraint("Equal", 23, 24),
    Sketcher.Constraint("Equal", 20, 25),
    Sketcher.Constraint("Equal", 24, 26),
    Sketcher.Constraint("Equal", 26, 27),
    Sketcher.Constraint("Equal", 25, 28),
    Sketcher.Constraint("Equal", 27, 29),
    Sketcher.Constraint("Equal", 29, 30),
    Sketcher.Constraint("Equal", 28, 31),
    Sketcher.Constraint("Equal", 30, 32),
    Sketcher.Constraint("Equal", 32, 33),
    Sketcher.Constraint("Equal", 33, 34),
    Sketcher.Constraint("Equal", 31, 35),
    Sketcher.Constraint("Symmetric", 0, 3, 2, 3, -2),
    Sketcher.Constraint("Symmetric", 3, 3, 4, 3, -2),
    Sketcher.Constraint("Symmetric", 6, 3, 7, 3, -2),
    Sketcher.Constraint("Symmetric", 9, 3, 10, 3, -2),
    Sketcher.Constraint("Symmetric", 12, 3, 13, 3, -2),
    Sketcher.Constraint("Symmetric", 15, 3, 16, 3, -2),
    Sketcher.Constraint("Symmetric", 18, 3, 19, 3, -2),
    Sketcher.Constraint("Symmetric", 22, 3, 23, 3, -2),
    Sketcher.Constraint("Symmetric", 24, 3, 26, 3, -2),
    Sketcher.Constraint("Symmetric", 27, 3, 29, 3, -2),
    Sketcher.Constraint("Symmetric", 30, 3, 32, 3, -2),
    Sketcher.Constraint("Symmetric", 33, 3, 34, 3, -2),
    Sketcher.Constraint("PointOnObject", 5, 3, -2),
    Sketcher.Constraint("PointOnObject", 8, 3, -2),
    Sketcher.Constraint("PointOnObject", 11, 3, -2),
    Sketcher.Constraint("PointOnObject", 14, 3, -2),
    Sketcher.Constraint("PointOnObject", 17, 3, -2),
    Sketcher.Constraint("PointOnObject", 20, 3, -2),
    Sketcher.Constraint("PointOnObject", 25, 3, -2),
    Sketcher.Constraint("PointOnObject", 28, 3, -2),
    Sketcher.Constraint("PointOnObject", 31, 3, -2),
    Sketcher.Constraint("PointOnObject", 35, 3, -2),
    Sketcher.Constraint("Vertical", 1, 3, 2, 3),
    Sketcher.Constraint("Vertical", 0, 3, 3, 3),
    Sketcher.Constraint("Vertical", 3, 3, 6, 3),
    Sketcher.Constraint("Vertical", 6, 3, 9, 3),
    Sketcher.Constraint("Vertical", 9, 3, 12, 3),
    Sketcher.Constraint("Vertical", 12, 3, 15, 3),
    Sketcher.Constraint("Vertical", 15, 3, 18, 3),
    Sketcher.Constraint("Vertical", 18, 3, 21, 3),
    Sketcher.Constraint("Vertical", 19, 3, 22, 3),
    Sketcher.Constraint("Vertical", 22, 3, 24, 3),
    Sketcher.Constraint("Vertical", 24, 3, 27, 3),
    Sketcher.Constraint("Vertical", 27, 3, 30, 3),
    Sketcher.Constraint("Vertical", 30, 3, 33, 3),
    Sketcher.Constraint("Diameter", 5, 40.0),
    Sketcher.Constraint("Diameter", 0, 5.5),
    Sketcher.Constraint("DistanceY", -1, 1, 33, 3, 50.0),
    Sketcher.Constraint("DistanceX", 1, 3, 0, 3, 40.0),
    Sketcher.Constraint("DistanceY", 0, 3, 1, 3, 50.0),
    Sketcher.Constraint("DistanceY", 1, 3, 3, 3, 50.0),
    Sketcher.Constraint("DistanceY", 3, 3, 6, 3, 50.0),
    Sketcher.Constraint("DistanceY", 5, 3, 8, 3, 50.0),
    Sketcher.Constraint("DistanceY", 6, 3, 9, 3, 50.0),
    Sketcher.Constraint("DistanceY", 8, 3, 11, 3, 50.0),
    Sketcher.Constraint("DistanceY", 9, 3, 12, 3, 50.0),
    Sketcher.Constraint("DistanceY", 11, 3, 14, 3, 50.0),
    Sketcher.Constraint("DistanceY", 12, 3, 15, 3, 50.0),
    Sketcher.Constraint("DistanceY", 14, 3, 17, 3, 50.0),
    Sketcher.Constraint("DistanceY", 15, 3, 18, 3, 50.0),
    Sketcher.Constraint("DistanceY", 21, 3, 0, 3, 50.0),
    Sketcher.Constraint("DistanceY", 22, 3, 21, 3, 50.0),
    Sketcher.Constraint("DistanceY", 24, 3, 22, 3, 50.0),
    Sketcher.Constraint("DistanceY", 27, 3, 24, 3, 50.0),
    Sketcher.Constraint("DistanceY", 28, 3, 25, 3, 50.0),
    Sketcher.Constraint("DistanceY", 30, 3, 27, 3, 50.0),
    Sketcher.Constraint("DistanceY", 31, 3, 28, 3, 50.0),
    Sketcher.Constraint("DistanceY", 33, 3, 30, 3, 50.0),
    Sketcher.Constraint("DistanceY", -1, 1, 5, 3, 425.0),
    Sketcher.Constraint("DistanceY", -1, 1, 20, 3, 725.0),
    Sketcher.Constraint("DistanceY", -1, 1, 25, 3, 225.0),
    Sketcher.Constraint("DistanceY", -1, 1, 35, 3, 25.0),
])
pocket4 = body.newObject("PartDesign::Pocket", "Pocket003")
pocket4.Profile = sketch5
pocket4.Length = 50

doc.recompute()
